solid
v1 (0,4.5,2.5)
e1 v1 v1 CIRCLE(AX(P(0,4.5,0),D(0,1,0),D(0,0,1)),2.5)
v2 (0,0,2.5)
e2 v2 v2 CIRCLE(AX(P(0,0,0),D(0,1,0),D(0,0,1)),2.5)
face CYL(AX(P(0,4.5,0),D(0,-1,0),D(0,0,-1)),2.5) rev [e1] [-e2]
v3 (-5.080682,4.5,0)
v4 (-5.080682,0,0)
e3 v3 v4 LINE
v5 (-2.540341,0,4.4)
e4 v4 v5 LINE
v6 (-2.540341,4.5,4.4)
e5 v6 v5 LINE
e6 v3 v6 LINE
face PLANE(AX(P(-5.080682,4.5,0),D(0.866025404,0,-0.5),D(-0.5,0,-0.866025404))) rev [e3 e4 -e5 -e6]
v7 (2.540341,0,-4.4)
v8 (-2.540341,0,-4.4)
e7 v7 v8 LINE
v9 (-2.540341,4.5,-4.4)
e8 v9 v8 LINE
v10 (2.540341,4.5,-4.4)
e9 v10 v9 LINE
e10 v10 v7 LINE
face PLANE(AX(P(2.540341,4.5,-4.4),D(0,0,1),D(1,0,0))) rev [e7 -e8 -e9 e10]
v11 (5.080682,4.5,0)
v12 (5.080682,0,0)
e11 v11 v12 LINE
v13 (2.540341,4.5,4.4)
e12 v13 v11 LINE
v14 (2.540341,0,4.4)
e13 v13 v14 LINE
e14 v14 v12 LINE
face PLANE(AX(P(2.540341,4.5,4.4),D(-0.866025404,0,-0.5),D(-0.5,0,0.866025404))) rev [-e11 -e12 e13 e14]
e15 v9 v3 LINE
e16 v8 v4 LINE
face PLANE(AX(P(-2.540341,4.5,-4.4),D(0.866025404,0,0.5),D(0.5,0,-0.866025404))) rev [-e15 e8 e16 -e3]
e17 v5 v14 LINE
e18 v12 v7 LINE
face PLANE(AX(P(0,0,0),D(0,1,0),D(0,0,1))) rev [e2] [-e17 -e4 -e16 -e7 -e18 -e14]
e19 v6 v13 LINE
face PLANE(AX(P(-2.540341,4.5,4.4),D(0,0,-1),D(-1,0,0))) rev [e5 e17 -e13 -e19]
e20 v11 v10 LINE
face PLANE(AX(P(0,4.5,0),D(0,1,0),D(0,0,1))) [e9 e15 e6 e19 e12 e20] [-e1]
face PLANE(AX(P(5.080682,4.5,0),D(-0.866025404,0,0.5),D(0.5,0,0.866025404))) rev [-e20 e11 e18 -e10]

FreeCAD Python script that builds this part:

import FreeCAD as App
import Part
import Sketcher
from FreeCAD import Vector
Q = App.Units.Quantity

doc = App.newDocument("Part")
body = doc.addObject("PartDesign::Body", "Body")

# Sketch on XZ plane
sketch1 = body.newObject("Sketcher::SketchObject", "Sketch")
sketch1.AttachmentSupport = (doc.getObject("XZ_Plane"), [""])
sketch1.MapMode = "FlatFace"
sketch1.addGeometry([
    Part.LineSegment(Vector(2.540341, 4.4, 0), Vector(5.080682, 0, 0)),  # 0
    Part.LineSegment(Vector(5.080682, 0, 0), Vector(2.540341, -4.4, 0)),  # 1
    Part.LineSegment(Vector(2.540341, -4.4, 0), Vector(-2.540341, -4.4, 0)),  # 2
    Part.LineSegment(Vector(-2.540341, -4.4, 0), Vector(-5.080682, 0, 0)),  # 3
    Part.LineSegment(Vector(-5.080682, 0, 0), Vector(-2.540341, 4.4, 0)),  # 4
    Part.LineSegment(Vector(-2.540341, 4.4, 0), Vector(2.540341, 4.4, 0)),  # 5
    Part.Circle(Vector(0, 0, 0), Vector(0, 0, 1), 2.5),  # 6
], False)
sketch1.addConstraint([
    Sketcher.Constraint("Coincident", 0, 2, 1, 1),
    Sketcher.Constraint("Coincident", 1, 2, 2, 1),
    Sketcher.Constraint("Coincident", 2, 2, 3, 1),
    Sketcher.Constraint("Coincident", 3, 2, 4, 1),
    Sketcher.Constraint("Coincident", 4, 2, 5, 1),
    Sketcher.Constraint("Coincident", 5, 2, 0, 1),
    Sketcher.Constraint("Horizontal", 2),
    Sketcher.Constraint("Horizontal", 5),
    Sketcher.Constraint("Coincident", 6, 3, -1, 1),
    Sketcher.Constraint("Symmetric", 0, 2, 3, 2, -1, 1),
    Sketcher.Constraint("Symmetric", 1, 2, 4, 2, -1, 1),
    Sketcher.Constraint("PointOnObject", 0, 2, -1),
    Sketcher.Constraint("Parallel", 0, 3),
    Sketcher.Constraint("Vertical", 2, 2, 4, 2),
    Sketcher.Constraint("Diameter", 6, 5.0),
    Sketcher.Constraint("Angle", 0, Q("-60 deg")),
    Sketcher.Constraint("DistanceY", 1, 2, -1, 1, 4.4),
    Sketcher.Constraint("DistanceX", 2, 2, 2, 1, 5.080682),
])
pad1 = body.newObject("PartDesign::Pad", "Pad")
pad1.Profile = sketch1
pad1.Length = 4.5
pad1.Reversed = True

doc.recompute()
